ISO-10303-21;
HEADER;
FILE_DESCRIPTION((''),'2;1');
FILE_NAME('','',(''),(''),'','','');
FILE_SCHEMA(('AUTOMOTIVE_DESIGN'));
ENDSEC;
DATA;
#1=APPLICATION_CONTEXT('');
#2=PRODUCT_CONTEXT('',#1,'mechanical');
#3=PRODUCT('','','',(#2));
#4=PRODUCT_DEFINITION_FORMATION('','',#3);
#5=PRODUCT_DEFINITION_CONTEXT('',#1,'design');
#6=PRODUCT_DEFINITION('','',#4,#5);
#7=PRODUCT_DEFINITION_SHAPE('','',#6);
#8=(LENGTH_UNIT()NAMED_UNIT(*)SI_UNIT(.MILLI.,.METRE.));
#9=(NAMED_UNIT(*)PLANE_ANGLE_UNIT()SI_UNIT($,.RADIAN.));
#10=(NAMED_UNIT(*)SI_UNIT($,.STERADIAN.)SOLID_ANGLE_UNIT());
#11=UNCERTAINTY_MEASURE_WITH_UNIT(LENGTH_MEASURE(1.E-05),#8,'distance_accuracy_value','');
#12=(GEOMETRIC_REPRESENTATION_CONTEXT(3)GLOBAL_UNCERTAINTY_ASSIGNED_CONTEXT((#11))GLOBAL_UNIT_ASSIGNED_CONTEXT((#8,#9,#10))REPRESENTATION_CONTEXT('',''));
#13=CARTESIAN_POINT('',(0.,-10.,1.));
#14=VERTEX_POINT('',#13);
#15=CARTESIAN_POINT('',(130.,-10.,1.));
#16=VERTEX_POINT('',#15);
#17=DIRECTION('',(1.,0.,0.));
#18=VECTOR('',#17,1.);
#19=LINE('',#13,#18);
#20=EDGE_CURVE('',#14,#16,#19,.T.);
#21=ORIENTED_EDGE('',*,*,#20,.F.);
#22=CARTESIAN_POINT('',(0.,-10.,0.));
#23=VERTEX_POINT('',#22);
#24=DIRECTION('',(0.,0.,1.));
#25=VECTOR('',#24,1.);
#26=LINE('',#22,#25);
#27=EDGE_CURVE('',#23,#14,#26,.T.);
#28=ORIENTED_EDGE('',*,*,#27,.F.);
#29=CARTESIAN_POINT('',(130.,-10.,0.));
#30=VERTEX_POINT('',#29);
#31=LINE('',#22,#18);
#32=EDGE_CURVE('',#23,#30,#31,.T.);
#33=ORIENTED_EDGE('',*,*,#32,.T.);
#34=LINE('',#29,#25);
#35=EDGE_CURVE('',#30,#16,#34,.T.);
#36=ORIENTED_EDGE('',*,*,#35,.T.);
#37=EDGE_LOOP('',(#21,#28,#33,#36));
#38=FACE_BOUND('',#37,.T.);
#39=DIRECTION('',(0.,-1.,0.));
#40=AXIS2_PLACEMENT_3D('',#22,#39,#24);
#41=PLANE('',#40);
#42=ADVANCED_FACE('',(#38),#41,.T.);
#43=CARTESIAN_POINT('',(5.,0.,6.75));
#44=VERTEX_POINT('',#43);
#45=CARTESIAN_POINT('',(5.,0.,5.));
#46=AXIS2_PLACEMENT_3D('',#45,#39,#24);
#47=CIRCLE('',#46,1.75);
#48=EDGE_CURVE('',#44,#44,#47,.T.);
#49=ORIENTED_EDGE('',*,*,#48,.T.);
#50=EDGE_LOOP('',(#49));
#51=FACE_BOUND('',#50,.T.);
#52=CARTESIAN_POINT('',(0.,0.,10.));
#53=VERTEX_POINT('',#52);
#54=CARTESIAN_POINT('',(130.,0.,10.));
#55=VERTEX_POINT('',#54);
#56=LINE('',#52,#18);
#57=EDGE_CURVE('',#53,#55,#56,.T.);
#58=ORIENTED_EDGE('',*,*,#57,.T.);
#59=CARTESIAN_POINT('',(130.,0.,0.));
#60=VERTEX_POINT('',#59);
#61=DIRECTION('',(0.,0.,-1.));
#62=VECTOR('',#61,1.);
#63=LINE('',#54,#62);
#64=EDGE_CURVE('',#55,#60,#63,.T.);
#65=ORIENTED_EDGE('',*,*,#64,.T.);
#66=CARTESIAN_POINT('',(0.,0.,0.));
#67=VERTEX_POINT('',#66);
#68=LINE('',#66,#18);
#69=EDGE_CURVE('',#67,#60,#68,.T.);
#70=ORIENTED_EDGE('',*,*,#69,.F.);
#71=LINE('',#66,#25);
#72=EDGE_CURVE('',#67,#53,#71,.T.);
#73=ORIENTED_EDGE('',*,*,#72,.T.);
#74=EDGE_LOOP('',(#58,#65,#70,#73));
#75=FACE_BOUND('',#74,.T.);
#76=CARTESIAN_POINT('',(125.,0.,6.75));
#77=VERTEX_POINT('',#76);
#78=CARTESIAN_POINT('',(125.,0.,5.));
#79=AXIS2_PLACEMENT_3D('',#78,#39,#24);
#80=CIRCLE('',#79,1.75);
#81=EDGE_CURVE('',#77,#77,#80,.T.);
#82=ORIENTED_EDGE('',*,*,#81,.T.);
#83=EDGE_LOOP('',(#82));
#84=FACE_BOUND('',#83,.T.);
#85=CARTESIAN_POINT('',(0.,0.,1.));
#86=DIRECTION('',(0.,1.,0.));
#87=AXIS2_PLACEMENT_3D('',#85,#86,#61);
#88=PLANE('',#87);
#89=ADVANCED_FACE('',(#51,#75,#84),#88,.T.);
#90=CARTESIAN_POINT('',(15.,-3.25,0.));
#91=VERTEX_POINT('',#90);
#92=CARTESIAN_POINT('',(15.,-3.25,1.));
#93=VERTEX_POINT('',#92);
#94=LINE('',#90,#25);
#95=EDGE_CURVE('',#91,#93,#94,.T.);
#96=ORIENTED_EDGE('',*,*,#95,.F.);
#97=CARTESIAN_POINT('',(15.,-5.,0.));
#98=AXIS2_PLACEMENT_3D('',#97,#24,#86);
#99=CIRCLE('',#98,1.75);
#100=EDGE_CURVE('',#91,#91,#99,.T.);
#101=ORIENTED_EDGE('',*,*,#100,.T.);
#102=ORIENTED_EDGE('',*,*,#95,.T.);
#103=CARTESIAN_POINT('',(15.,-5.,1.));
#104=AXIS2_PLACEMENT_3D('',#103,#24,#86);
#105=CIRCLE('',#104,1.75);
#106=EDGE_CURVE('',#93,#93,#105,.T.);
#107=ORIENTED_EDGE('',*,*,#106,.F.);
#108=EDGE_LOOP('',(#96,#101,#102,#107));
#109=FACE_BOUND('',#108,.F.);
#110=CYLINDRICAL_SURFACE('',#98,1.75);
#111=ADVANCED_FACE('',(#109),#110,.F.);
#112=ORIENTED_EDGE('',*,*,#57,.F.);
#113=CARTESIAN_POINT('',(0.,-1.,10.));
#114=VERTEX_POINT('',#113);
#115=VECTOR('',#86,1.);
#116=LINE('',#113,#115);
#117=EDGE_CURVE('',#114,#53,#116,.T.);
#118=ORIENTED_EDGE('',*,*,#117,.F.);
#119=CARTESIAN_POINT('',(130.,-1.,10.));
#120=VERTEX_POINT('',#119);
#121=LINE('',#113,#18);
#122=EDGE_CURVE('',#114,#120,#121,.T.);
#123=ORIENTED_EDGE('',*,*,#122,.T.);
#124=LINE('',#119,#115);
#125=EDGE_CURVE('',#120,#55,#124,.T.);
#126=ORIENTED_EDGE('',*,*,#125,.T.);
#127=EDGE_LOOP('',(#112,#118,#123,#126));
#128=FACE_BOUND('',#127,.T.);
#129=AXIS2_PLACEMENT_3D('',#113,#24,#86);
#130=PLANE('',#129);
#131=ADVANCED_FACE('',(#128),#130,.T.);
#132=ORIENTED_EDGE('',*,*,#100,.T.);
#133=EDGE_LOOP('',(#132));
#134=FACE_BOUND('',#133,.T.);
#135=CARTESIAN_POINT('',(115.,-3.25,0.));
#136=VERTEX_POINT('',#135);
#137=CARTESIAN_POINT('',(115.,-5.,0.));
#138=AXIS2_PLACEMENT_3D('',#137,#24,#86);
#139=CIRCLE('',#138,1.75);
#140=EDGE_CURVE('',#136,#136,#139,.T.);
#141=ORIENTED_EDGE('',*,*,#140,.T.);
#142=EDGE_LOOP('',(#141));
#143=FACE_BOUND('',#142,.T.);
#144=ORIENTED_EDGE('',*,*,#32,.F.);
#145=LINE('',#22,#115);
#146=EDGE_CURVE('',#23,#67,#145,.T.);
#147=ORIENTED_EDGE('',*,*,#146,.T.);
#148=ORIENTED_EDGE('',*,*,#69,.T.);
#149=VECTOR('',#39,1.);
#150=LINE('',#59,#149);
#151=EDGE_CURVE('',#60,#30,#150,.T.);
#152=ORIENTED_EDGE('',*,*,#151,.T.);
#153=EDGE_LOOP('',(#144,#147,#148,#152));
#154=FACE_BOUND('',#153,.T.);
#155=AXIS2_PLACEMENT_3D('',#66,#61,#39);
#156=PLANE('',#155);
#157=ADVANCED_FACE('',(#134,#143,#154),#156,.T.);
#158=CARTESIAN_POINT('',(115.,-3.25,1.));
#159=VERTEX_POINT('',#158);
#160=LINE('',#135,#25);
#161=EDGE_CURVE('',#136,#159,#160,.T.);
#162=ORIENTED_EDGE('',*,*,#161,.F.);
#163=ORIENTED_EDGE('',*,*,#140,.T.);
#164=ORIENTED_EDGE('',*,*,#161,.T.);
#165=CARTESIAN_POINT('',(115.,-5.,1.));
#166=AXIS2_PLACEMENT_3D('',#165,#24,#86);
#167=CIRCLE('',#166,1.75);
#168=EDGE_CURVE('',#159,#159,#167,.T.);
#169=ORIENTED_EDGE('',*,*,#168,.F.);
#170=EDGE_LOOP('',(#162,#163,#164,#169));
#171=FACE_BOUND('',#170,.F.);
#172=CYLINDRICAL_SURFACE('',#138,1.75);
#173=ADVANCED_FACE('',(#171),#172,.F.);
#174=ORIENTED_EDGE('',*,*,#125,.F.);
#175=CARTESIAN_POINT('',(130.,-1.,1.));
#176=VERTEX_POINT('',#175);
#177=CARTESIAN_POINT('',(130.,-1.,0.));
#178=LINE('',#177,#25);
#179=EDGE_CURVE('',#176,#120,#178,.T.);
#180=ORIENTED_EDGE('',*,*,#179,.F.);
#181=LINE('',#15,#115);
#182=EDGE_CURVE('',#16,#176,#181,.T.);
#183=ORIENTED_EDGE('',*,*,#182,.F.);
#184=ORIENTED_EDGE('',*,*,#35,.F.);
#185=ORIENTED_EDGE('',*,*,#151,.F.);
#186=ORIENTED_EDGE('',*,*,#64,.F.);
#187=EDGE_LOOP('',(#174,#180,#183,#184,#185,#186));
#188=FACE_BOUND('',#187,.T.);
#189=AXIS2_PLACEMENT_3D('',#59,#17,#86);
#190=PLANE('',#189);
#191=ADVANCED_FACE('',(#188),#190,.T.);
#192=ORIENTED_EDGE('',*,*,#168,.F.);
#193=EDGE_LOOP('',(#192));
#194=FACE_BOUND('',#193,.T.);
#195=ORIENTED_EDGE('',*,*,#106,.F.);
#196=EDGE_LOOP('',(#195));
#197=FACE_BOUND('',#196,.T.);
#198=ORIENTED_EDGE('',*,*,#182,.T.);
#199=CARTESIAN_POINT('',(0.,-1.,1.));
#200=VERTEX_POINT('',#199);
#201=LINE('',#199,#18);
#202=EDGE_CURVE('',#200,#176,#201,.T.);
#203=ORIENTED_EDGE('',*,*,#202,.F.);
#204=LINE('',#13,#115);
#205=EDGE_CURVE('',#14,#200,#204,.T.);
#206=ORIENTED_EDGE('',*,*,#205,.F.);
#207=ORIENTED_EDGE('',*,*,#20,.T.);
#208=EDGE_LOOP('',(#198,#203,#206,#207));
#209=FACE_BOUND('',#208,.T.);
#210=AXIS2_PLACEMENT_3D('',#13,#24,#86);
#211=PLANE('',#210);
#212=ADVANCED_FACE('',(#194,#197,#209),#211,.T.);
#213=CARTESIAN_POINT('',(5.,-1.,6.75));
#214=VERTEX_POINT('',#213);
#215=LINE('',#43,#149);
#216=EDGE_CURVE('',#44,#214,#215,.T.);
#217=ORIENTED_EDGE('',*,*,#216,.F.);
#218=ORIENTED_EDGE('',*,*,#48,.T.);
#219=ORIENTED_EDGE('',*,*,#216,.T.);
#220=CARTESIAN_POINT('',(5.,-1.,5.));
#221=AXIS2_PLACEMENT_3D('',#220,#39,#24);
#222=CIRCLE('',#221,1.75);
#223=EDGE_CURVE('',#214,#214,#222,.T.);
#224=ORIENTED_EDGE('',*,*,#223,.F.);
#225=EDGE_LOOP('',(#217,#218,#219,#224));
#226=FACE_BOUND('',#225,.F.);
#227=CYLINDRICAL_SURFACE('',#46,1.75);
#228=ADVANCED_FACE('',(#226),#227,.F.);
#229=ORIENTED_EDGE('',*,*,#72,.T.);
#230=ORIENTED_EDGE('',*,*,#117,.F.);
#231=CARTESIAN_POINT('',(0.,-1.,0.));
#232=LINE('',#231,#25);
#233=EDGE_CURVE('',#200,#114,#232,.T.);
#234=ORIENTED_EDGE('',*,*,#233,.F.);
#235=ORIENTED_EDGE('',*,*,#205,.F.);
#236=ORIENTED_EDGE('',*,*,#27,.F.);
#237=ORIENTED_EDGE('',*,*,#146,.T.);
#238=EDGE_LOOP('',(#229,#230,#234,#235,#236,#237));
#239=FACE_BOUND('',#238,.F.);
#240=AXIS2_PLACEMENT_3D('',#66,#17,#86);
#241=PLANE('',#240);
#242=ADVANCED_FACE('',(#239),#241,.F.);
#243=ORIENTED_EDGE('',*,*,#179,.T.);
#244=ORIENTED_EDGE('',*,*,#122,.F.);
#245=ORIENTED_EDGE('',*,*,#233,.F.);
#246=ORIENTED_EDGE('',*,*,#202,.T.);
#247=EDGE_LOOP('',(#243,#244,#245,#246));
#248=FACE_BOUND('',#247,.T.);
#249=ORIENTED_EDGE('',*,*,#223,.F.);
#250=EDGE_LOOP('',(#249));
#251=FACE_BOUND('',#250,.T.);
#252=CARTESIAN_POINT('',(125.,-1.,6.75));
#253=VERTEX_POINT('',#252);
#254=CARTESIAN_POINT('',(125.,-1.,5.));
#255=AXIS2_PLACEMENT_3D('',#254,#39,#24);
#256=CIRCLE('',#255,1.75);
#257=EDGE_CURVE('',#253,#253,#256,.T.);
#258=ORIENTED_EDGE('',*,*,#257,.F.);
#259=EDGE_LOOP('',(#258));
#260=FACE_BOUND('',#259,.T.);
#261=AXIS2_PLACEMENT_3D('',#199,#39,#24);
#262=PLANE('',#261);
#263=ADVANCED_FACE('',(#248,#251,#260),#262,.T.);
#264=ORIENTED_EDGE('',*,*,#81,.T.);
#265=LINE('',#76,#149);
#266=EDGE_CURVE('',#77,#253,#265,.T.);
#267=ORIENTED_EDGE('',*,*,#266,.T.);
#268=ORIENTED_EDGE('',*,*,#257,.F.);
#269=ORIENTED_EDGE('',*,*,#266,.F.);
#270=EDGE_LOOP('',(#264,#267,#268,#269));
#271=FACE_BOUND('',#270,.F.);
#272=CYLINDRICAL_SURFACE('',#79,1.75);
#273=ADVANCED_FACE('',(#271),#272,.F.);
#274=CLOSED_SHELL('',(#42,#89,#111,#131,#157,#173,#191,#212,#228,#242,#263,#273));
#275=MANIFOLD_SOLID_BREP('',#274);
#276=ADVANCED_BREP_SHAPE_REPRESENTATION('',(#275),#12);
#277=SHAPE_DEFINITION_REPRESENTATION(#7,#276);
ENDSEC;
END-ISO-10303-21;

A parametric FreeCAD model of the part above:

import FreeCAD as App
import Part
import Sketcher

doc = App.newDocument("Part")
params = doc.addObject("Spreadsheet::Sheet", "Params")
for row, (alias, value) in enumerate([
    ("sketch1_width", "1 mm"),
    ("sketch1_width2", "10 mm"),
    ("pad1_length", "130 mm"),
    ("sketch2_diameter", "3.5 mm"),
    ("hole_diameter", "3.5 mm"),
    ("sketch3_diameter", "3.5 mm"),
    ("hole2_diameter", "3.5 mm"),
], start=1):
    params.set(f"A{row}", alias)
    params.set(f"B{row}", "=" + value)
    params.setAlias(f"B{row}", alias)

body = doc.addObject("PartDesign::Body", "Body")

sketch1 = body.newObject("Sketcher::SketchObject", "Sketch")
sketch1.AttachmentSupport = (doc.getObject("YZ_Plane"), [""])
sketch1.MapMode = "FlatFace"
sketch1.addGeometry(Part.LineSegment(App.Vector(0, 0, 0), App.Vector(0, 10, 0)), False)
sketch1.addGeometry(Part.LineSegment(App.Vector(0, 10, 0), App.Vector(-1, 10, 0)), False)
sketch1.addGeometry(Part.LineSegment(App.Vector(-1, 10, 0), App.Vector(-1, 1, 0)), False)
sketch1.addGeometry(Part.LineSegment(App.Vector(-1, 1, 0), App.Vector(-10, 1, 0)), False)
sketch1.addGeometry(Part.LineSegment(App.Vector(-10, 1, 0), App.Vector(-10, 0, 0)), False)
sketch1.addGeometry(Part.LineSegment(App.Vector(-10, 0, 0), App.Vector(0, 0, 0)), False)
sketch1.addConstraint(Sketcher.Constraint("Coincident", 0, 2, 1, 1))
sketch1.addConstraint(Sketcher.Constraint("Coincident", 1, 2, 2, 1))
sketch1.addConstraint(Sketcher.Constraint("Coincident", 2, 2, 3, 1))
sketch1.addConstraint(Sketcher.Constraint("Coincident", 3, 2, 4, 1))
sketch1.addConstraint(Sketcher.Constraint("Coincident", 4, 2, 5, 1))
sketch1.addConstraint(Sketcher.Constraint("Coincident", 5, 2, 0, 1))
sketch1.addConstraint(Sketcher.Constraint("Vertical", 0))
sketch1.addConstraint(Sketcher.Constraint("Horizontal", 1))
sketch1.addConstraint(Sketcher.Constraint("Vertical", 2))
sketch1.addConstraint(Sketcher.Constraint("Horizontal", 3))
sketch1.addConstraint(Sketcher.Constraint("Vertical", 4))
sketch1.addConstraint(Sketcher.Constraint("Horizontal", 5))
sketch1.addConstraint(Sketcher.Constraint("Coincident", 5, 2, -1, 1))
sketch1.addConstraint(Sketcher.Constraint("Equal", 5, 0))
sketch1.addConstraint(Sketcher.Constraint("Equal", 3, 2))
sketch1.addConstraint(Sketcher.Constraint("DistanceX", 1, 2, 1, 1, 1.0))
sketch1.addConstraint(Sketcher.Constraint("DistanceX", 5, 1, 5, 2, 10.0))
sketch1.setExpression("Constraints[15]", "Params.sketch1_width")
sketch1.setExpression("Constraints[16]", "Params.sketch1_width2")
pad1 = body.newObject("PartDesign::Pad", "Pad")
pad1.Profile = sketch1
pad1.setExpression("Length", "Params.pad1_length")

sketch2 = body.newObject("Sketcher::SketchObject", "Sketch001")
sketch2.AttachmentSupport = (doc.getObject("XZ_Plane"), [""])
sketch2.MapMode = "FlatFace"
sketch2.addGeometry(Part.Circle(App.Vector(5, 5, 0), App.Vector(0, 0, 1), 1.8), False)
sketch2.addGeometry(Part.Circle(App.Vector(125, 5, 0), App.Vector(0, 0, 1), 1.8), False)
sketch2.addConstraint(Sketcher.Constraint("Equal", 0, 1))
sketch2.addConstraint(Sketcher.Constraint("Horizontal", 0, 3, 1, 3))
sketch2.addConstraint(Sketcher.Constraint("Diameter", 0, 3.5))
sketch2.addConstraint(Sketcher.Constraint("DistanceX", -1, 1, 0, 3, 5.0))
sketch2.addConstraint(Sketcher.Constraint("DistanceY", -1, 1, 0, 3, 5.0))
sketch2.addConstraint(Sketcher.Constraint("DistanceX", -1, 1, 1, 3, 125.0))
sketch2.setExpression("Constraints[2]", "Params.sketch2_diameter")
doc.recompute()
hole = body.newObject("PartDesign::Hole", "Hole")
hole.Profile = sketch2
hole.ThreadType = "None"
hole.setExpression("Diameter", "Params.hole_diameter")
hole.DepthType = "ThroughAll"
hole.Reversed = True

sketch3 = body.newObject("Sketcher::SketchObject", "Sketch002")
sketch3.AttachmentSupport = (doc.getObject("XY_Plane"), [""])
sketch3.MapMode = "FlatFace"
sketch3.addGeometry(Part.Circle(App.Vector(115, -5, 0), App.Vector(0, 0, 1), 1.8), False)
sketch3.addGeometry(Part.Circle(App.Vector(15, -5, 0), App.Vector(0, 0, 1), 1.8), False)
sketch3.addConstraint(Sketcher.Constraint("Equal", 0, 1))
sketch3.addConstraint(Sketcher.Constraint("Horizontal", 0, 3, 1, 3))
sketch3.addConstraint(Sketcher.Constraint("Diameter", 0, 3.5))
sketch3.addConstraint(Sketcher.Constraint("DistanceX", -1, 1, 0, 3, 115.0))
sketch3.addConstraint(Sketcher.Constraint("DistanceY", 0, 3, -1, 1, 5.0))
sketch3.addConstraint(Sketcher.Constraint("DistanceX", -1, 1, 1, 3, 15.0))
sketch3.setExpression("Constraints[2]", "Params.sketch3_diameter")
doc.recompute()
hole2 = body.newObject("PartDesign::Hole", "Hole001")
hole2.Profile = sketch3
hole2.ThreadType = "None"
hole2.setExpression("Diameter", "Params.hole2_diameter")
hole2.DepthType = "ThroughAll"
hole2.Reversed = True

doc.recompute()
